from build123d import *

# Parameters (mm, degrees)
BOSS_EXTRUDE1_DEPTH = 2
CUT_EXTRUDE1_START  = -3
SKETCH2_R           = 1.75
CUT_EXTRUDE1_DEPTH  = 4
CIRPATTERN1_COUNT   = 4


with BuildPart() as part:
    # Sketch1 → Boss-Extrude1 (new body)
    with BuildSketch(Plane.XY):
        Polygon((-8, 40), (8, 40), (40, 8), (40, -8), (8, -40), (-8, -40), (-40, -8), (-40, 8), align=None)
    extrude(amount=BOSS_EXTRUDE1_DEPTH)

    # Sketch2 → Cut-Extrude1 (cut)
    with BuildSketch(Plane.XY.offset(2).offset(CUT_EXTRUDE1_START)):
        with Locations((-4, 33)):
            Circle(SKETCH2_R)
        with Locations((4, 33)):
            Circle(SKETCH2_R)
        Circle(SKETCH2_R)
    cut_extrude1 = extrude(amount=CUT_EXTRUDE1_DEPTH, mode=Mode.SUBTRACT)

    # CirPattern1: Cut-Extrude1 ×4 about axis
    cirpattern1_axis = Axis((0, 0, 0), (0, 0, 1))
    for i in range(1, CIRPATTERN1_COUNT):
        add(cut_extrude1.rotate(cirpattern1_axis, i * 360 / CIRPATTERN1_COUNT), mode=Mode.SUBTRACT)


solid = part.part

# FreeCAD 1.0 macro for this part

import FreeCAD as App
import Part
import Sketcher
Q = App.Units.Quantity


def add_polygon(sketch, points):
    """Adds a closed chain of lines whose ends are joined by coincident constraints."""
    first, n = sketch.GeometryCount, len(points)
    for a, b in zip(points, points[1:] + points[:1]):
        sketch.addGeometry(Part.LineSegment(App.Vector(*a, 0), App.Vector(*b, 0)), False)
    for i in range(n):
        sketch.addConstraint(Sketcher.Constraint("Coincident", first + i, 2, first + (i + 1) % n, 1))

doc = App.newDocument("Part")
body = doc.addObject("PartDesign::Body", "Body")

sketch1 = doc.addObject("Sketcher::SketchObject", "Sketch")
body.addObject(sketch1)
sketch1.AttachmentSupport = (doc.XY_Plane, [""])
sketch1.MapMode = "FlatFace"
add_polygon(sketch1, [(8, 40), (-8, 40), (-40, 8), (-40, -8), (-8, -40), (8, -40), (40, -8), (40, 8)])
sketch1.addConstraint([
    Sketcher.Constraint("Horizontal", 0),
    Sketcher.Constraint("Vertical", 2),
    Sketcher.Constraint("Horizontal", 4),
    Sketcher.Constraint("Vertical", 6),
    Sketcher.Constraint("Symmetric", 0, 2, 4, 2, -1, 1),
    Sketcher.Constraint("Symmetric", 1, 2, 5, 2, -1, 1),
    Sketcher.Constraint("Perpendicular", 1, 3),
    Sketcher.Constraint("Perpendicular", 5, 7),
    Sketcher.Constraint("Horizontal", 2, 2, 5, 2),
    Sketcher.Constraint("Horizontal", 1, 2, 6, 2),
    Sketcher.Constraint("Vertical", 0, 2, 3, 2),
    Sketcher.Constraint("Equal", 4, 2),
    Sketcher.Constraint("DistanceX", 0, 2, 0, 1, Q("16 mm")),
    Sketcher.Constraint("DistanceY", -1, 1, 0, 2, Q("40 mm")),
])
pad1 = doc.addObject("PartDesign::Pad", "Pad")
body.addObject(pad1)
pad1.Profile = sketch1
pad1.Length = 2

sketch2 = doc.addObject("Sketcher::SketchObject", "Sketch001")
body.addObject(sketch2)
sketch2.AttachmentSupport = (doc.XY_Plane, [""])
sketch2.MapMode = "FlatFace"
sketch2.AttachmentOffset = App.Placement(App.Vector(0, 0, -1), App.Rotation())
sketch2.addGeometry([
    Part.Circle(App.Vector(-4, 33, 0), App.Vector(0, 0, 1), 1.8),
    Part.Circle(App.Vector(4, 33, 0), App.Vector(0, 0, 1), 1.8),
    Part.Circle(App.Vector(0, 0, 0), App.Vector(0, 0, 1), 1.8),
], False)
sketch2.addConstraint([
    Sketcher.Constraint("Coincident", 2, 3, -1, 1),
    Sketcher.Constraint("Equal", 0, 1),
    Sketcher.Constraint("Equal", 1, 2),
    Sketcher.Constraint("Symmetric", 0, 3, 1, 3, -2),
    Sketcher.Constraint("Diameter", 0, Q("3.5 mm")),
    Sketcher.Constraint("DistanceX", 0, 3, -1, 1, Q("4 mm")),
    Sketcher.Constraint("DistanceY", -1, 1, 0, 3, Q("33 mm")),
])
pocket1 = doc.addObject("PartDesign::Pocket", "Pocket")
body.addObject(pocket1)
pocket1.Profile = sketch2
pocket1.Length = 4
pocket1.Reversed = True
doc.recompute()

polarpattern = doc.addObject("PartDesign::PolarPattern", "PolarPattern")
body.addObject(polarpattern)
polarpattern.Originals = [pocket1]
polarpattern.Axis = (doc.Z_Axis, [""])
polarpattern.Angle = 360
polarpattern.Occurrences = 4
body.Tip = polarpattern

doc.recompute()
